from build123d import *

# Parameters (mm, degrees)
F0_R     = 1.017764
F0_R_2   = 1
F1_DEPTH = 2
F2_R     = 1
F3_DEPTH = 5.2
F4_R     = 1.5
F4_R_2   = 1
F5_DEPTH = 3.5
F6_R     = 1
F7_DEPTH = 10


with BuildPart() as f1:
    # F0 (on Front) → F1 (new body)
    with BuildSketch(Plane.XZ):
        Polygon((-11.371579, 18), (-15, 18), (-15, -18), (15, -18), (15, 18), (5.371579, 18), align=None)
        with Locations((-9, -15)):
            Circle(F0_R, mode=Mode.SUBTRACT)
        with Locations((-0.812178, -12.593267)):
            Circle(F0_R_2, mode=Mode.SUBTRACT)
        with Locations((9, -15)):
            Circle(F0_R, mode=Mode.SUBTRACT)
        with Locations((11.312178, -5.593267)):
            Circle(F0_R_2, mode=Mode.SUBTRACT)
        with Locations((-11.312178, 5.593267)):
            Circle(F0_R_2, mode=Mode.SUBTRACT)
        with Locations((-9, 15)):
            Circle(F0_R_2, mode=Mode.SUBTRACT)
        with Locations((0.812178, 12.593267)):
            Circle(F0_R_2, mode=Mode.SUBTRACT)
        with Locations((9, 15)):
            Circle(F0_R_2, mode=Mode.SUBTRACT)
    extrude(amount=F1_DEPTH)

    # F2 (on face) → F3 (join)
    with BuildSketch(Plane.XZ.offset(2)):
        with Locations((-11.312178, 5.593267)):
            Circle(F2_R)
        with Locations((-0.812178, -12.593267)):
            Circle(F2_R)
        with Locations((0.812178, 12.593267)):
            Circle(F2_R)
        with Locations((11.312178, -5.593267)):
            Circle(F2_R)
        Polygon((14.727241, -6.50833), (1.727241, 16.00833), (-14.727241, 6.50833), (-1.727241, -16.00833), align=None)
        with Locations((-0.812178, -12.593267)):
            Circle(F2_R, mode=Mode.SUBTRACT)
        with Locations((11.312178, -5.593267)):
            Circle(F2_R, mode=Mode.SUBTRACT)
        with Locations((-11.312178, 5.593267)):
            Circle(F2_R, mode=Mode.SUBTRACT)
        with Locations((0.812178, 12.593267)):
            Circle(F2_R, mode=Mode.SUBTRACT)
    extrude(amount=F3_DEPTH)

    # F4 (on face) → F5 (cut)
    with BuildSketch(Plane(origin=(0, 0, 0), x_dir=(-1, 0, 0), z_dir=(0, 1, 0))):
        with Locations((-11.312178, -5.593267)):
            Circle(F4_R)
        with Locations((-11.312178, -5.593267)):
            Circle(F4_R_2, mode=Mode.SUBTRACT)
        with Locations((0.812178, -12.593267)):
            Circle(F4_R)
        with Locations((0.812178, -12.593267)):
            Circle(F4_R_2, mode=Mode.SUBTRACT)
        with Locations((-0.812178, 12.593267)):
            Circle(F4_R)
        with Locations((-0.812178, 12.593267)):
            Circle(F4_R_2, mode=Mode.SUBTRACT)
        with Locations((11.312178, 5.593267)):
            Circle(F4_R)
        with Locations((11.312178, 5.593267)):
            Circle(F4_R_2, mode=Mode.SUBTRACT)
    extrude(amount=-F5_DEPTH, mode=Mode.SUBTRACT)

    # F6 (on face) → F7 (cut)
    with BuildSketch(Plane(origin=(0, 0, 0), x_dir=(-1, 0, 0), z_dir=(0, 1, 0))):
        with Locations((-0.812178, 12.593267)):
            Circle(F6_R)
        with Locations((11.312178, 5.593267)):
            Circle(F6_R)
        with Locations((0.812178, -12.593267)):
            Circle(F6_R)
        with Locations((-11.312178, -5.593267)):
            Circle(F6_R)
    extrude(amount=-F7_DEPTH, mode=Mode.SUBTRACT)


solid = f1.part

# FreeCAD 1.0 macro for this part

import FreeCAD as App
import Part
import Sketcher
Q = App.Units.Quantity

doc = App.newDocument("Part")
params = doc.addObject("Spreadsheet::Sheet", "Params")
for row, (alias, value) in enumerate([
    ("sketch1_diameter", "2 mm"),
    ("sketch1_width", "30 mm"),
    ("sketch1_height", "36 mm"),
    ("pad1_length", "2 mm"),
    ("sketch2_diameter", "2 mm"),
    ("sketch2_length", "26 mm"),
    ("sketch2_length2", "18.999999 mm"),
    ("pad2_length", "5.2 mm"),
    ("sketch3_diameter", "3 mm"),
    ("sketch3_diameter2", "2 mm"),
    ("pocket1_length", "3.5 mm"),
    ("sketch4_diameter", "2 mm"),
    ("pocket2_length", "10 mm"),
], start=1):
    params.set(f"A{row}", alias)
    params.set(f"B{row}", "=" + value)
    params.setAlias(f"B{row}", alias)

body = doc.addObject("PartDesign::Body", "Body")

sketch1 = doc.addObject("Sketcher::SketchObject", "Sketch")
body.addObject(sketch1)
sketch1.AttachmentSupport = (doc.XZ_Plane, [""])
sketch1.MapMode = "FlatFace"
sketch1.addGeometry([
    Part.LineSegment(App.Vector(-15, 18, 0), App.Vector(-15, -18, 0)),
    Part.LineSegment(App.Vector(-15, -18, 0), App.Vector(15, -18, 0)),
    Part.LineSegment(App.Vector(15, -18, 0), App.Vector(15, 18, 0)),
    Part.LineSegment(App.Vector(15, 18, 0), App.Vector(-15, 18, 0)),
    Part.Circle(App.Vector(-9, -15, 0), App.Vector(0, 0, 1), 1),
    Part.Circle(App.Vector(-0.8, -12.6, 0), App.Vector(0, 0, 1), 1),
    Part.Circle(App.Vector(9, -15, 0), App.Vector(0, 0, 1), 1),
    Part.Circle(App.Vector(11.3, -5.6, 0), App.Vector(0, 0, 1), 1),
    Part.Circle(App.Vector(-11.3, 5.6, 0), App.Vector(0, 0, 1), 1),
    Part.Circle(App.Vector(-9, 15, 0), App.Vector(0, 0, 1), 1),
    Part.Circle(App.Vector(0.8, 12.6, 0), App.Vector(0, 0, 1), 1),
    Part.Circle(App.Vector(9, 15, 0), App.Vector(0, 0, 1), 1),
], False)
sketch1.addConstraint([
    Sketcher.Constraint("Coincident", 0, 2, 1, 1),
    Sketcher.Constraint("Coincident", 1, 2, 2, 1),
    Sketcher.Constraint("Coincident", 2, 2, 3, 1),
    Sketcher.Constraint("Coincident", 3, 2, 0, 1),
    Sketcher.Constraint("Vertical", 0),
    Sketcher.Constraint("Horizontal", 1),
    Sketcher.Constraint("Vertical", 2),
    Sketcher.Constraint("Horizontal", 3),
    Sketcher.Constraint("Equal", 4, 6),
    Sketcher.Constraint("Equal", 5, 7),
    Sketcher.Constraint("Equal", 7, 8),
    Sketcher.Constraint("Equal", 8, 9),
    Sketcher.Constraint("Equal", 9, 10),
    Sketcher.Constraint("Equal", 10, 11),
    Sketcher.Constraint("Symmetric", 7, 3, 8, 3, -1, 1),
    Sketcher.Constraint("Symmetric", 6, 3, 9, 3, -1, 1),
    Sketcher.Constraint("Symmetric", 5, 3, 10, 3, -1, 1),
    Sketcher.Constraint("Symmetric", 4, 3, 11, 3, -1, 1),
    Sketcher.Constraint("Symmetric", 0, 2, 2, 2, -1, 1),
    Sketcher.Constraint("Symmetric", 4, 3, 6, 3, -2),
    Sketcher.Constraint("Diameter", 5, Q("2 mm")),
    Sketcher.Constraint("DistanceX", 1, 1, 1, 2, Q("30 mm")),
    Sketcher.Constraint("DistanceY", 0, 2, 0, 1, Q("36 mm")),
    Sketcher.Constraint("DistanceX", 4, 3, -1, 1, Q("9 mm")),
    Sketcher.Constraint("DistanceY", 4, 3, -1, 1, Q("15 mm")),
    Sketcher.Constraint("DistanceY", 5, 3, 7, 3, Q("7 mm")),
    Sketcher.Constraint("DistanceX", 8, 3, 5, 3, Q("10.5 mm")),
    Sketcher.Constraint("Diameter", 4, Q("2.035528 mm")),
    Sketcher.Constraint("DistanceX", 5, 3, -1, 1, Q("0.812178 mm")),
    Sketcher.Constraint("DistanceY", 5, 3, -1, 1, Q("12.593267 mm")),
])
sketch1.setExpression("Constraints[20]", "Params.sketch1_diameter")
sketch1.setExpression("Constraints[21]", "Params.sketch1_width")
sketch1.setExpression("Constraints[22]", "Params.sketch1_height")
pad1 = doc.addObject("PartDesign::Pad", "Pad")
body.addObject(pad1)
pad1.Profile = sketch1
pad1.setExpression("Length", "Params.pad1_length")

sketch2 = doc.addObject("Sketcher::SketchObject", "Sketch001")
body.addObject(sketch2)
sketch2.AttachmentSupport = (doc.XZ_Plane, [""])
sketch2.MapMode = "FlatFace"
sketch2.AttachmentOffset = App.Placement(App.Vector(0, 0, 2), App.Rotation())
sketch2.addGeometry([
    Part.LineSegment(App.Vector(14.7, -6.5, 0), App.Vector(1.7, 16, 0)),
    Part.LineSegment(App.Vector(1.7, 16, 0), App.Vector(-14.7, 6.5, 0)),
    Part.LineSegment(App.Vector(-14.7, 6.5, 0), App.Vector(-1.7, -16, 0)),
    Part.LineSegment(App.Vector(-1.7, -16, 0), App.Vector(14.7, -6.5, 0)),
    Part.Circle(App.Vector(-0.8, -12.6, 0), App.Vector(0, 0, 1), 1),
    Part.Circle(App.Vector(11.3, -5.6, 0), App.Vector(0, 0, 1), 1),
    Part.Circle(App.Vector(-11.3, 5.6, 0), App.Vector(0, 0, 1), 1),
    Part.Circle(App.Vector(0.8, 12.6, 0), App.Vector(0, 0, 1), 1),
], False)
sketch2.addConstraint([
    Sketcher.Constraint("Coincident", 0, 2, 1, 1),
    Sketcher.Constraint("Coincident", 1, 2, 2, 1),
    Sketcher.Constraint("Coincident", 2, 2, 3, 1),
    Sketcher.Constraint("Coincident", 3, 2, 0, 1),
    Sketcher.Constraint("Equal", 4, 5),
    Sketcher.Constraint("Equal", 5, 6),
    Sketcher.Constraint("Equal", 6, 7),
    Sketcher.Constraint("Symmetric", 5, 3, 6, 3, -1, 1),
    Sketcher.Constraint("Symmetric", 4, 3, 7, 3, -1, 1),
    Sketcher.Constraint("Symmetric", 0, 2, 2, 2, -1, 1),
    Sketcher.Constraint("Symmetric", 1, 2, 3, 2, -1, 1),
    Sketcher.Constraint("Perpendicular", 0, 1),
    Sketcher.Constraint("Diameter", 4, Q("2 mm")),
    Sketcher.Constraint("Angle", 0, Q("120.000001 deg")),
    Sketcher.Constraint("Distance", 0, Q("26 mm")),
    Sketcher.Constraint("Distance", 1, Q("18.999999 mm")),
    Sketcher.Constraint("DistanceY", 4, 3, 5, 3, Q("7 mm")),
    Sketcher.Constraint("DistanceX", 6, 3, 4, 3, Q("10.5 mm")),
    Sketcher.Constraint("DistanceX", 6, 3, 0, 2, Q("13.039419 mm")),
    Sketcher.Constraint("DistanceY", 4, 3, -1, 1, Q("12.593267 mm")),
])
sketch2.setExpression("Constraints[12]", "Params.sketch2_diameter")
sketch2.setExpression("Constraints[14]", "Params.sketch2_length")
sketch2.setExpression("Constraints[15]", "Params.sketch2_length2")
pad2 = doc.addObject("PartDesign::Pad", "Pad001")
body.addObject(pad2)
pad2.Profile = sketch2
pad2.setExpression("Length", "Params.pad2_length")

sketch3 = doc.addObject("Sketcher::SketchObject", "Sketch002")
body.addObject(sketch3)
sketch3.AttachmentSupport = (doc.XZ_Plane, [""])
sketch3.MapMode = "FlatFace"
sketch3.addGeometry([
    Part.Circle(App.Vector(11.3, -5.6, 0), App.Vector(0, 0, 1), 1.5),
    Part.Circle(App.Vector(11.3, -5.6, 0), App.Vector(0, 0, 1), 1),
    Part.Circle(App.Vector(-0.8, -12.6, 0), App.Vector(0, 0, 1), 1.5),
    Part.Circle(App.Vector(-0.8, -12.6, 0), App.Vector(0, 0, 1), 1),
    Part.Circle(App.Vector(0.8, 12.6, 0), App.Vector(0, 0, 1), 1.5),
    Part.Circle(App.Vector(0.8, 12.6, 0), App.Vector(0, 0, 1), 1),
    Part.Circle(App.Vector(-11.3, 5.6, 0), App.Vector(0, 0, 1), 1.5),
    Part.Circle(App.Vector(-11.3, 5.6, 0), App.Vector(0, 0, 1), 1),
], False)
sketch3.addConstraint([
    Sketcher.Constraint("Coincident", 1, 3, 0, 3),
    Sketcher.Constraint("Coincident", 3, 3, 2, 3),
    Sketcher.Constraint("Coincident", 5, 3, 4, 3),
    Sketcher.Constraint("Coincident", 7, 3, 6, 3),
    Sketcher.Constraint("Equal", 0, 2),
    Sketcher.Constraint("Equal", 1, 3),
    Sketcher.Constraint("Equal", 2, 4),
    Sketcher.Constraint("Equal", 3, 5),
    Sketcher.Constraint("Equal", 4, 6),
    Sketcher.Constraint("Equal", 5, 7),
    Sketcher.Constraint("Symmetric", 2, 3, 4, 3, -1, 1),
    Sketcher.Constraint("Symmetric", 0, 3, 6, 3, -1, 1),
    Sketcher.Constraint("Diameter", 0, Q("3 mm")),
    Sketcher.Constraint("Diameter", 1, Q("2 mm")),
    Sketcher.Constraint("DistanceY", 2, 3, 0, 3, Q("7 mm")),
    Sketcher.Constraint("DistanceX", 4, 3, 0, 3, Q("10.5 mm")),
    Sketcher.Constraint("DistanceX", -1, 1, 0, 3, Q("11.312178 mm")),
    Sketcher.Constraint("DistanceY", 0, 3, -1, 1, Q("5.593267 mm")),
])
sketch3.setExpression("Constraints[12]", "Params.sketch3_diameter")
sketch3.setExpression("Constraints[13]", "Params.sketch3_diameter2")
pocket1 = doc.addObject("PartDesign::Pocket", "Pocket")
body.addObject(pocket1)
pocket1.Profile = sketch3
pocket1.setExpression("Length", "Params.pocket1_length")
pocket1.Reversed = True

sketch4 = doc.addObject("Sketcher::SketchObject", "Sketch003")
body.addObject(sketch4)
sketch4.AttachmentSupport = (doc.XZ_Plane, [""])
sketch4.MapMode = "FlatFace"
sketch4.addGeometry([
    Part.Circle(App.Vector(0.8, 12.6, 0), App.Vector(0, 0, 1), 1),
    Part.Circle(App.Vector(-11.3, 5.6, 0), App.Vector(0, 0, 1), 1),
    Part.Circle(App.Vector(-0.8, -12.6, 0), App.Vector(0, 0, 1), 1),
    Part.Circle(App.Vector(11.3, -5.6, 0), App.Vector(0, 0, 1), 1),
], False)
sketch4.addConstraint([
    Sketcher.Constraint("Equal", 0, 1),
    Sketcher.Constraint("Equal", 1, 2),
    Sketcher.Constraint("Equal", 2, 3),
    Sketcher.Constraint("Symmetric", 0, 3, 2, 3, -1, 1),
    Sketcher.Constraint("Symmetric", 1, 3, 3, 3, -1, 1),
    Sketcher.Constraint("Diameter", 0, Q("2 mm")),
    Sketcher.Constraint("DistanceY", 1, 3, 0, 3, Q("7 mm")),
    Sketcher.Constraint("DistanceX", 1, 3, 2, 3, Q("10.5 mm")),
    Sketcher.Constraint("DistanceX", -1, 1, 0, 3, Q("0.812178 mm")),
    Sketcher.Constraint("DistanceY", -1, 1, 0, 3, Q("12.593267 mm")),
])
sketch4.setExpression("Constraints[5]", "Params.sketch4_diameter")
pocket2 = doc.addObject("PartDesign::Pocket", "Pocket001")
body.addObject(pocket2)
pocket2.Profile = sketch4
pocket2.setExpression("Length", "Params.pocket2_length")
pocket2.Reversed = True

doc.recompute()
